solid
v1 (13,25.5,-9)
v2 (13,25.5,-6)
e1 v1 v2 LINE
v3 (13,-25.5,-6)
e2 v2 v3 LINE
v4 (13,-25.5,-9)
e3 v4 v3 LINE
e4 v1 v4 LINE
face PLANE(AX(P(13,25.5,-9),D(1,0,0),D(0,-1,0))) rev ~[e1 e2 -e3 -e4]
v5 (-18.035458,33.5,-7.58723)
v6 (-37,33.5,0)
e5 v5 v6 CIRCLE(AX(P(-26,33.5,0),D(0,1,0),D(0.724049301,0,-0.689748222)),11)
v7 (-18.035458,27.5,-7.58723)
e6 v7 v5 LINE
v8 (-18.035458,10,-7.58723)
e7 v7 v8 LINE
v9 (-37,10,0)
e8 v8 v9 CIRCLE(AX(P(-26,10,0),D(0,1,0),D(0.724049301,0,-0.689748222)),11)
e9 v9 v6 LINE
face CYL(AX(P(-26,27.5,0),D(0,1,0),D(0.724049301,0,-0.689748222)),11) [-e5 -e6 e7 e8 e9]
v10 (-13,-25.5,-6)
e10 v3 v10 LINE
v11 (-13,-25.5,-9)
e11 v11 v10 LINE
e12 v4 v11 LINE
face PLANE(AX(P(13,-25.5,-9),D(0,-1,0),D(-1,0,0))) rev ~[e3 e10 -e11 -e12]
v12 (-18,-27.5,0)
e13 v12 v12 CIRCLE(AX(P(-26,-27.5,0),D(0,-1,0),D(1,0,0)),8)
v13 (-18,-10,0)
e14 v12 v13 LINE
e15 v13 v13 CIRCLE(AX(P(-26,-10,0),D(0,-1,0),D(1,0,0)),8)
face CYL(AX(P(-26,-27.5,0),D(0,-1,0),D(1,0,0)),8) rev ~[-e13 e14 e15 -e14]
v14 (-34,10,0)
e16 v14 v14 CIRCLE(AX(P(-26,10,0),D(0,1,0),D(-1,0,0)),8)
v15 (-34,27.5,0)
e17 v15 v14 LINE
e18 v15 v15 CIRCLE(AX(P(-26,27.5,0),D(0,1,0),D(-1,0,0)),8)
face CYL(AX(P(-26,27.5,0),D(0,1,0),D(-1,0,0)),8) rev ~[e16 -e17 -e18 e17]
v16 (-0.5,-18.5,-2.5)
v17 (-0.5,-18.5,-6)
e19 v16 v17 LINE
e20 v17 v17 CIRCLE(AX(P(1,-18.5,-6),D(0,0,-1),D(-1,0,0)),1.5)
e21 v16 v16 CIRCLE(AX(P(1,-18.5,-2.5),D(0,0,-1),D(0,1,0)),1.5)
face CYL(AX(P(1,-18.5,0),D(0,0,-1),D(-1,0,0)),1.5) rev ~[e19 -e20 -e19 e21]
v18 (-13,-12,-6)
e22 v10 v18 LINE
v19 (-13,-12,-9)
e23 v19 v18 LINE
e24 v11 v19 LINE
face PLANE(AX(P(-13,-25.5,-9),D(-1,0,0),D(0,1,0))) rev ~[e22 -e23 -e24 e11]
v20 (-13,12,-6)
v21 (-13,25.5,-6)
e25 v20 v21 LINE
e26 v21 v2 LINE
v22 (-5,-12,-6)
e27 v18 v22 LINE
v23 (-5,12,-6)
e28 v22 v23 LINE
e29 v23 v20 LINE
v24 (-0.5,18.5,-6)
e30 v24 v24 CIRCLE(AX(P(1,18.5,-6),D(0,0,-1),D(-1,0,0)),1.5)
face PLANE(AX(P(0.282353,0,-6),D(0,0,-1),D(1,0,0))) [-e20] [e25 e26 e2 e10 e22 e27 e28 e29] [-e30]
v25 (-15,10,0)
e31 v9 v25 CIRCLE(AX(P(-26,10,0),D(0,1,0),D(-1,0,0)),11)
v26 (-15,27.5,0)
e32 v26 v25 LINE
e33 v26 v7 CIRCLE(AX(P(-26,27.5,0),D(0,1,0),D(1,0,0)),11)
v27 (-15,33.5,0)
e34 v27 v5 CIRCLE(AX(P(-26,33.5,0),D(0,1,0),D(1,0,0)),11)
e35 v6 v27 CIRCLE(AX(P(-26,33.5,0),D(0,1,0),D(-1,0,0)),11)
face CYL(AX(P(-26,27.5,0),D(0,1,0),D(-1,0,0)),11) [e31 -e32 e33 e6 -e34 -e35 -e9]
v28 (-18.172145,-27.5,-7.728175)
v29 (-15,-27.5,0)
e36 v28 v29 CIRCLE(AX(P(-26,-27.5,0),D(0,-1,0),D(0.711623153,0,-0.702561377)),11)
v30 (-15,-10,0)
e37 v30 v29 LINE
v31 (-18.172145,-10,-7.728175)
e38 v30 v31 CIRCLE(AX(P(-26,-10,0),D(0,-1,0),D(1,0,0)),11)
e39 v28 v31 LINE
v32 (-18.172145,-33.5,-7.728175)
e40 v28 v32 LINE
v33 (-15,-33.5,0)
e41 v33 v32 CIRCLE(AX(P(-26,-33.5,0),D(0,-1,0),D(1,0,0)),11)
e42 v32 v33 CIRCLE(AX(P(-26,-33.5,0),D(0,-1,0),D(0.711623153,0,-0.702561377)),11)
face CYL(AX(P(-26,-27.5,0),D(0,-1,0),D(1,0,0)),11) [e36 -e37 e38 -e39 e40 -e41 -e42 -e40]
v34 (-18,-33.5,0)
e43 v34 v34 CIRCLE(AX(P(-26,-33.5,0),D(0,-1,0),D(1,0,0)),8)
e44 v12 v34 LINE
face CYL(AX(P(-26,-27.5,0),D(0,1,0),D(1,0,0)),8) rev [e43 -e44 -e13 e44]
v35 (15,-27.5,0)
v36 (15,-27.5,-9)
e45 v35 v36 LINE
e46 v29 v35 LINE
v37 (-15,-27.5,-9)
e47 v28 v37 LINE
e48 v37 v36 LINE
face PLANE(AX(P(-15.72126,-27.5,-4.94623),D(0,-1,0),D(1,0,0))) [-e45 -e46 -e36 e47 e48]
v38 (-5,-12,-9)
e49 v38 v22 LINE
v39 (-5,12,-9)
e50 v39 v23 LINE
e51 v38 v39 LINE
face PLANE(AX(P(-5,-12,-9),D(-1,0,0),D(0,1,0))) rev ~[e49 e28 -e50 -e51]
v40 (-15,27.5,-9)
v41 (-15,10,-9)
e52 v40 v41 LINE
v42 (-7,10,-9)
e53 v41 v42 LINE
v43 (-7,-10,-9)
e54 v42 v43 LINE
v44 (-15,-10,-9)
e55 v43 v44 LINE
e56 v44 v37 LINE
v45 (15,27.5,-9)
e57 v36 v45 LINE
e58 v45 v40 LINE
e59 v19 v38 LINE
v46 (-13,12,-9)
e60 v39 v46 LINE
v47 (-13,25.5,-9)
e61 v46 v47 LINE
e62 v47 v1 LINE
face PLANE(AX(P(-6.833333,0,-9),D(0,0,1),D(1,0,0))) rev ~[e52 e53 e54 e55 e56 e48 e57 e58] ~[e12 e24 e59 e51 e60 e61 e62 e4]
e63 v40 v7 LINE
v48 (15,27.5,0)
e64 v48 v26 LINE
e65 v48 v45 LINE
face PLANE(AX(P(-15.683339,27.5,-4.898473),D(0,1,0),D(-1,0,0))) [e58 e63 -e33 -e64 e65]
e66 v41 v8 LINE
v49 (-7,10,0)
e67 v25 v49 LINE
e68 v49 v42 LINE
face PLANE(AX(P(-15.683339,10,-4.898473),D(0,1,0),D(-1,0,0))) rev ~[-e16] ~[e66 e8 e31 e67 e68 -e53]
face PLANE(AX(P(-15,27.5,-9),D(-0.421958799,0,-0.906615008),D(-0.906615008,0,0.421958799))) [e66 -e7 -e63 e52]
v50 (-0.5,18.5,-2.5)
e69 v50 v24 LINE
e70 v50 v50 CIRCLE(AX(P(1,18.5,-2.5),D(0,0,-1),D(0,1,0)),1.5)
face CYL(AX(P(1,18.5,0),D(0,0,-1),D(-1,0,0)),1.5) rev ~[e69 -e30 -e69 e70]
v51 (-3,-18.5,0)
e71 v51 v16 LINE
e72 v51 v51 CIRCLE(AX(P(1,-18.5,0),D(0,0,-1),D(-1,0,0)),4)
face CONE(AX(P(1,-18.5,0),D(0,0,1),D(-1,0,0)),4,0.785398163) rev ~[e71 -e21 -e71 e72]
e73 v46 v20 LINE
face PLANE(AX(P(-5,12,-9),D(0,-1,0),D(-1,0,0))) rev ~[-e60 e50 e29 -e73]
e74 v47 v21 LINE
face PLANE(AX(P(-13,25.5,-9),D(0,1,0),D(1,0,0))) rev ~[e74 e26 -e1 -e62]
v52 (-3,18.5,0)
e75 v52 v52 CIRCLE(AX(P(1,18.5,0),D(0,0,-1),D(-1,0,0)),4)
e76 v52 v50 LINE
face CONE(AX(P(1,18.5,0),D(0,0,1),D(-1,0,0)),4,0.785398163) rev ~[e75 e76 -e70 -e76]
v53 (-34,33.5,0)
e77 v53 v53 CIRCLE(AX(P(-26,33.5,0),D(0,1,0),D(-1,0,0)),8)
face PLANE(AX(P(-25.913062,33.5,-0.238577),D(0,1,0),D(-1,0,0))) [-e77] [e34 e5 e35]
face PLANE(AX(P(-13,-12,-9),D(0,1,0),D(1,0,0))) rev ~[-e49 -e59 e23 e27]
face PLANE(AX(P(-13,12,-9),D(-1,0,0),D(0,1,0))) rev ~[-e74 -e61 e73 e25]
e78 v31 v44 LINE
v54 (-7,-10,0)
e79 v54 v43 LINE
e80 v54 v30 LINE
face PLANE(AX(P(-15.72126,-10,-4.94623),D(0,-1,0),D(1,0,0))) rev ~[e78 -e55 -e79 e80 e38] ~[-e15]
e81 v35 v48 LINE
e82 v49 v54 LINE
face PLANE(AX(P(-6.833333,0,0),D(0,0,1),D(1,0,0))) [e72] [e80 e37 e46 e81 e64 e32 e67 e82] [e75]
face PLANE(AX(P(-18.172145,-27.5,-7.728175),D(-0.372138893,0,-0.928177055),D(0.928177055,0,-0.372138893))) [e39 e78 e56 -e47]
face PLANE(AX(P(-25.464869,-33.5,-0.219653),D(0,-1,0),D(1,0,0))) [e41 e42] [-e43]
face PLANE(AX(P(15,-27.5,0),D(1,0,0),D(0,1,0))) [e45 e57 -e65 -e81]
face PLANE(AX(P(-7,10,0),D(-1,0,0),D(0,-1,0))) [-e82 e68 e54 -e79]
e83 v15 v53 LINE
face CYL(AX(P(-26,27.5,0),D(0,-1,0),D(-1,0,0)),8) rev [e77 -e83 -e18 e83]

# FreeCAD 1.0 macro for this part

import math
import FreeCAD as App
import Part
import Sketcher


def add_polygon(sketch, points):
    """Adds a closed chain of lines whose ends are joined by coincident constraints."""
    first, n = sketch.GeometryCount, len(points)
    for a, b in zip(points, points[1:] + points[:1]):
        sketch.addGeometry(Part.LineSegment(App.Vector(*a, 0), App.Vector(*b, 0)), False)
    for i in range(n):
        sketch.addConstraint(Sketcher.Constraint("Coincident", first + i, 2, first + (i + 1) % n, 1))

doc = App.newDocument("Part")
body = doc.addObject("PartDesign::Body", "Body")
body.AllowCompound = True

# Sketch on XY plane
sketch1 = doc.addObject("Sketcher::SketchObject", "Sketch")
body.addObject(sketch1)
sketch1.AttachmentSupport = (doc.XY_Plane, [""])
sketch1.MapMode = "FlatFace"
add_polygon(sketch1, [(-15, -10), (-15, -28), (15, -28), (15, 28), (-15, 28), (-15, 10), (-7, 10), (-7, -10)])  # lines 0-7
sketch1.addConstraint(Sketcher.Constraint("Vertical", 0))
sketch1.addConstraint(Sketcher.Constraint("Horizontal", 1))
sketch1.addConstraint(Sketcher.Constraint("Vertical", 2))
sketch1.addConstraint(Sketcher.Constraint("Horizontal", 3))
sketch1.addConstraint(Sketcher.Constraint("Vertical", 4))
sketch1.addConstraint(Sketcher.Constraint("Horizontal", 5))
sketch1.addConstraint(Sketcher.Constraint("Vertical", 6))
sketch1.addConstraint(Sketcher.Constraint("Horizontal", 7))
sketch1.addConstraint(Sketcher.Constraint("Symmetric", 0, 2, 2, 2, -1, 1))
sketch1.addConstraint(Sketcher.Constraint("Symmetric", 4, 2, 7, 2, -1))
sketch1.addConstraint(Sketcher.Constraint("DistanceX", 1, 1, 1, 2, 30.0))
sketch1.addConstraint(Sketcher.Constraint("DistanceX", 5, 1, 5, 2, 8.0))
sketch1.addConstraint(Sketcher.Constraint("DistanceY", 2, 1, 2, 2, 55.0))
sketch1.addConstraint(Sketcher.Constraint("DistanceY", 6, 2, 6, 1, 20.0))
pad1 = doc.addObject("PartDesign::Pad", "Pad")
body.addObject(pad1)
pad1.Profile = sketch1
pad1.Length = 9
pad1.Reversed = True

# Sketch on XY plane
sketch2 = doc.addObject("Sketcher::SketchObject", "Sketch001")
body.addObject(sketch2)
sketch2.AttachmentSupport = (doc.XY_Plane, [""])
sketch2.MapMode = "FlatFace"
sketch2.AttachmentOffset = App.Placement(App.Vector(0, 0, -9), App.Rotation())
add_polygon(sketch2, [(-13, -26), (-13, -12), (-5, -12), (-5, 12), (-13, 12), (-13, 26), (13, 26), (13, -26)])  # lines 0-7
sketch2.addConstraint(Sketcher.Constraint("Vertical", 0))
sketch2.addConstraint(Sketcher.Constraint("Horizontal", 1))
sketch2.addConstraint(Sketcher.Constraint("Vertical", 2))
sketch2.addConstraint(Sketcher.Constraint("Horizontal", 3))
sketch2.addConstraint(Sketcher.Constraint("Vertical", 4))
sketch2.addConstraint(Sketcher.Constraint("Horizontal", 5))
sketch2.addConstraint(Sketcher.Constraint("Vertical", 6))
sketch2.addConstraint(Sketcher.Constraint("Horizontal", 7))
sketch2.addConstraint(Sketcher.Constraint("Symmetric", 4, 2, 6, 2, -1, 1))
sketch2.addConstraint(Sketcher.Constraint("Symmetric", 0, 2, 3, 2, -1))
sketch2.addConstraint(Sketcher.Constraint("DistanceX", 1, 1, 1, 2, 8.0))
sketch2.addConstraint(Sketcher.Constraint("DistanceX", 5, 1, 5, 2, 26.0))
sketch2.addConstraint(Sketcher.Constraint("DistanceY", 2, 1, 2, 2, 24.0))
sketch2.addConstraint(Sketcher.Constraint("DistanceY", 6, 2, 6, 1, 51.0))
pocket1 = doc.addObject("PartDesign::Pocket", "Pocket")
body.addObject(pocket1)
pocket1.Profile = sketch2
pocket1.Length = 3
pocket1.Reversed = True

# Sketch on XZ plane
sketch3 = doc.addObject("Sketcher::SketchObject", "Sketch002")
body.addObject(sketch3)
sketch3.AttachmentSupport = (doc.XZ_Plane, [""])
sketch3.MapMode = "FlatFace"
sketch3.AttachmentOffset = App.Placement(App.Vector(0, 0, 27.5), App.Rotation())
sketch3.addGeometry(Part.ArcOfCircle(Part.Circle(App.Vector(-26, 0, 0), App.Vector(0, 0, 1), 11), math.radians(-45), math.radians(0)), False)
sketch3.addGeometry(Part.ArcOfCircle(Part.Circle(App.Vector(-26, 0, 0), App.Vector(0, 0, 1), 11), math.radians(0), math.radians(315)), False)
sketch3.addGeometry(Part.Circle(App.Vector(-26, 0, 0), App.Vector(0, 0, 1), 8), False)
sketch3.addConstraint(Sketcher.Constraint("Tangent", 0, 1, 1, 2))
sketch3.addConstraint(Sketcher.Constraint("Coincident", 1, 1, 0, 2))
sketch3.addConstraint(Sketcher.Constraint("Coincident", 2, 3, 0, 3))
sketch3.addConstraint(Sketcher.Constraint("PointOnObject", 0, 3, -1))
sketch3.addConstraint(Sketcher.Constraint("PointOnObject", 1, 1, -1))
sketch3.addConstraint(Sketcher.Constraint("Diameter", 2, 16.0))
sketch3.addConstraint(Sketcher.Constraint("Radius", 0, 11.0))
sketch3.addConstraint(Sketcher.Constraint("DistanceX", 0, 3, -1, 1, 26.0))
sketch3.addConstraint(Sketcher.Constraint("DistanceX", 0, 1, -1, 1, 18.172145))
pad2 = doc.addObject("PartDesign::Pad", "Pad001")
body.addObject(pad2)
pad2.Profile = sketch3
pad2.Type = "TwoLengths"
pad2.Length = 6
pad2.Length2 = 17.5

# Sketch on XZ plane
sketch4 = doc.addObject("Sketcher::SketchObject", "Sketch003")
body.addObject(sketch4)
sketch4.AttachmentSupport = (doc.XZ_Plane, [""])
sketch4.MapMode = "FlatFace"
sketch4.AttachmentOffset = App.Placement(App.Vector(0, 0, 27.5), App.Rotation())
sketch4.addGeometry(Part.LineSegment(App.Vector(-15, -9, 0), App.Vector(-15, 0, 0)), False)
sketch4.addGeometry(Part.ArcOfCircle(Part.Circle(App.Vector(-26, 0, 0), App.Vector(0, 0, 1), 11), math.radians(-45), math.radians(0)), False)
sketch4.addGeometry(Part.LineSegment(App.Vector(-18.2, -7.7, 0), App.Vector(-15, -9, 0)), False)
sketch4.addConstraint(Sketcher.Constraint("Tangent", 0, 2, 1, 2))
sketch4.addConstraint(Sketcher.Constraint("Coincident", 1, 1, 2, 1))
sketch4.addConstraint(Sketcher.Constraint("Coincident", 2, 2, 0, 1))
sketch4.addConstraint(Sketcher.Constraint("Vertical", 0))
sketch4.addConstraint(Sketcher.Constraint("PointOnObject", 1, 3, -1))
sketch4.addConstraint(Sketcher.Constraint("Radius", 1, 11.0))
sketch4.addConstraint(Sketcher.Constraint("DistanceY", 0, 1, 0, 2, 9.0))
sketch4.addConstraint(Sketcher.Constraint("DistanceX", 1, 3, -1, 1, 26.0))
sketch4.addConstraint(Sketcher.Constraint("Distance", 2, 3.417608))
pad3 = doc.addObject("PartDesign::Pad", "Pad002")
body.addObject(pad3)
pad3.Profile = sketch4
pad3.Length = 17.5
pad3.Reversed = True

# Sketch on XZ plane
sketch5 = doc.addObject("Sketcher::SketchObject", "Sketch004")
body.addObject(sketch5)
sketch5.AttachmentSupport = (doc.XZ_Plane, [""])
sketch5.MapMode = "FlatFace"
sketch5.AttachmentOffset = App.Placement(App.Vector(0, 0, -27.5), App.Rotation())
sketch5.addGeometry(Part.ArcOfCircle(Part.Circle(App.Vector(-26, 0, 0), App.Vector(0, 0, 1), 11), math.radians(180), math.radians(316)), False)
sketch5.addGeometry(Part.ArcOfCircle(Part.Circle(App.Vector(-26, 0, 0), App.Vector(0, 0, 1), 11), math.radians(0), math.radians(180)), False)
sketch5.addGeometry(Part.ArcOfCircle(Part.Circle(App.Vector(-26, 0, 0), App.Vector(0, 0, 1), 11), math.radians(-44), math.radians(0)), False)
sketch5.addGeometry(Part.Circle(App.Vector(-26, 0, 0), App.Vector(0, 0, 1), 8), False)
sketch5.addConstraint(Sketcher.Constraint("Tangent", 0, 1, 1, 2))
sketch5.addConstraint(Sketcher.Constraint("Tangent", 1, 1, 2, 2))
sketch5.addConstraint(Sketcher.Constraint("Tangent", 2, 1, 0, 2))
sketch5.addConstraint(Sketcher.Constraint("Coincident", 3, 3, 0, 3))
sketch5.addConstraint(Sketcher.Constraint("PointOnObject", 0, 3, -1))
sketch5.addConstraint(Sketcher.Constraint("PointOnObject", 0, 1, -1))
sketch5.addConstraint(Sketcher.Constraint("PointOnObject", 1, 1, -1))
sketch5.addConstraint(Sketcher.Constraint("Diameter", 3, 16.0))
sketch5.addConstraint(Sketcher.Constraint("Radius", 0, 11.0))
sketch5.addConstraint(Sketcher.Constraint("DistanceX", 0, 3, -1, 1, 26.0))
sketch5.addConstraint(Sketcher.Constraint("DistanceY", 2, 1, -1, 1, 7.58723))
pad4 = doc.addObject("PartDesign::Pad", "Pad003")
body.addObject(pad4)
pad4.Profile = sketch5
pad4.Type = "TwoLengths"
pad4.Length = 17.5
pad4.Length2 = 6

# Sketch on XZ plane
sketch6 = doc.addObject("Sketcher::SketchObject", "Sketch005")
body.addObject(sketch6)
sketch6.AttachmentSupport = (doc.XZ_Plane, [""])
sketch6.MapMode = "FlatFace"
sketch6.AttachmentOffset = App.Placement(App.Vector(0, 0, -27.5), App.Rotation())
sketch6.addGeometry(Part.ArcOfCircle(Part.Circle(App.Vector(-26, 0, 0), App.Vector(0, 0, 1), 11), math.radians(-44), math.radians(0)), False)
sketch6.addGeometry(Part.LineSegment(App.Vector(-15, 0, 0), App.Vector(-15, -9, 0)), False)
sketch6.addGeometry(Part.LineSegment(App.Vector(-15, -9, 0), App.Vector(-18, -7.6, 0)), False)
sketch6.addConstraint(Sketcher.Constraint("Tangent", 0, 2, 1, 1))
sketch6.addConstraint(Sketcher.Constraint("Coincident", 1, 2, 2, 1))
sketch6.addConstraint(Sketcher.Constraint("Coincident", 2, 2, 0, 1))
sketch6.addConstraint(Sketcher.Constraint("Vertical", 1))
sketch6.addConstraint(Sketcher.Constraint("PointOnObject", 0, 3, -1))
sketch6.addConstraint(Sketcher.Constraint("Radius", 0, 11.0))
sketch6.addConstraint(Sketcher.Constraint("DistanceY", 1, 2, 1, 1, 9.0))
sketch6.addConstraint(Sketcher.Constraint("DistanceX", 0, 3, -1, 1, 26.0))
sketch6.addConstraint(Sketcher.Constraint("DistanceY", 2, 2, -1, 1, 7.58723))
pad5 = doc.addObject("PartDesign::Pad", "Pad004")
body.addObject(pad5)
pad5.Profile = sketch6
pad5.Length = 17.5

# Sketch on XY plane
sketch7 = doc.addObject("Sketcher::SketchObject", "Sketch006")
body.addObject(sketch7)
sketch7.AttachmentSupport = (doc.XY_Plane, [""])
sketch7.MapMode = "FlatFace"
sketch7.addGeometry(Part.Circle(App.Vector(1, 18.5, 0), App.Vector(0, 0, 1), 1.5), False)
sketch7.addGeometry(Part.Circle(App.Vector(1, -18.5, 0), App.Vector(0, 0, 1), 1.5), False)
sketch7.addConstraint(Sketcher.Constraint("Equal", 0, 1))
sketch7.addConstraint(Sketcher.Constraint("Symmetric", 0, 3, 1, 3, -1))
sketch7.addConstraint(Sketcher.Constraint("Diameter", 0, 3.0))
sketch7.addConstraint(Sketcher.Constraint("DistanceX", -1, 1, 0, 3, 1.0))
sketch7.addConstraint(Sketcher.Constraint("DistanceY", 1, 3, 0, 3, 37.0))
doc.recompute()
hole = doc.addObject("PartDesign::Hole", "Hole")
body.addObject(hole)
hole.Profile = sketch7
hole.ThreadType = "None"
hole.Diameter = 3
hole.DepthType = "ThroughAll"
hole.HoleCutType = "Countersink"
hole.HoleCutDiameter = 8
hole.HoleCutCountersinkAngle = 90

doc.recompute()
